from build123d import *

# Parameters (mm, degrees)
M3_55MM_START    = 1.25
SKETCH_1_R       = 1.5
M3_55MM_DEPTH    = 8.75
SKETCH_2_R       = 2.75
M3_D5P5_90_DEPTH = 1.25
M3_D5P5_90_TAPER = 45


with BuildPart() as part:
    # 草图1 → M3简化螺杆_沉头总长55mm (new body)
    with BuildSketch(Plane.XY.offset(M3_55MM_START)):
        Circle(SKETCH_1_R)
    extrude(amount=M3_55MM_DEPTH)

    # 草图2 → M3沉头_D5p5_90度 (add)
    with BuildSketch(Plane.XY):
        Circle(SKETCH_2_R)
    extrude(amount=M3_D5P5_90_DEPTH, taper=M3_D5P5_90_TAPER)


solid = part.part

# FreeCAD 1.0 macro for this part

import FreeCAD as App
import Part
import Sketcher
Q = App.Units.Quantity

doc = App.newDocument("Part")
body = doc.addObject("PartDesign::Body", "Body")

# Sketch on XY plane
sketch1 = body.newObject("Sketcher::SketchObject", "Sketch")
sketch1.AttachmentSupport = (doc.getObject("XY_Plane"), [""])
sketch1.MapMode = "FlatFace"
sketch1.AttachmentOffset = App.Placement(App.Vector(0, 0, 1.25), App.Rotation())
sketch1.addGeometry(Part.Circle(App.Vector(0, 0, 0), App.Vector(0, 0, 1), 1.5), False)
sketch1.addConstraint([
    Sketcher.Constraint("Coincident", 0, 3, -1, 1),
    Sketcher.Constraint("Diameter", 0, Q("3 mm")),
])
pad1 = body.newObject("PartDesign::Pad", "Pad")
pad1.Profile = sketch1
pad1.Length = 8.75

# Sketch on XY plane
sketch2 = body.newObject("Sketcher::SketchObject", "Sketch001")
sketch2.AttachmentSupport = (doc.getObject("XY_Plane"), [""])
sketch2.MapMode = "FlatFace"
sketch2.addGeometry(Part.Circle(App.Vector(0, 0, 0), App.Vector(0, 0, 1), 2.75), False)
sketch2.addConstraint([
    Sketcher.Constraint("Coincident", 0, 3, -1, 1),
    Sketcher.Constraint("Diameter", 0, Q("5.5 mm")),
])
pad2 = body.newObject("PartDesign::Pad", "Pad001")
pad2.Profile = sketch2
pad2.Length = 1.25
pad2.TaperAngle = -45

doc.recompute()
